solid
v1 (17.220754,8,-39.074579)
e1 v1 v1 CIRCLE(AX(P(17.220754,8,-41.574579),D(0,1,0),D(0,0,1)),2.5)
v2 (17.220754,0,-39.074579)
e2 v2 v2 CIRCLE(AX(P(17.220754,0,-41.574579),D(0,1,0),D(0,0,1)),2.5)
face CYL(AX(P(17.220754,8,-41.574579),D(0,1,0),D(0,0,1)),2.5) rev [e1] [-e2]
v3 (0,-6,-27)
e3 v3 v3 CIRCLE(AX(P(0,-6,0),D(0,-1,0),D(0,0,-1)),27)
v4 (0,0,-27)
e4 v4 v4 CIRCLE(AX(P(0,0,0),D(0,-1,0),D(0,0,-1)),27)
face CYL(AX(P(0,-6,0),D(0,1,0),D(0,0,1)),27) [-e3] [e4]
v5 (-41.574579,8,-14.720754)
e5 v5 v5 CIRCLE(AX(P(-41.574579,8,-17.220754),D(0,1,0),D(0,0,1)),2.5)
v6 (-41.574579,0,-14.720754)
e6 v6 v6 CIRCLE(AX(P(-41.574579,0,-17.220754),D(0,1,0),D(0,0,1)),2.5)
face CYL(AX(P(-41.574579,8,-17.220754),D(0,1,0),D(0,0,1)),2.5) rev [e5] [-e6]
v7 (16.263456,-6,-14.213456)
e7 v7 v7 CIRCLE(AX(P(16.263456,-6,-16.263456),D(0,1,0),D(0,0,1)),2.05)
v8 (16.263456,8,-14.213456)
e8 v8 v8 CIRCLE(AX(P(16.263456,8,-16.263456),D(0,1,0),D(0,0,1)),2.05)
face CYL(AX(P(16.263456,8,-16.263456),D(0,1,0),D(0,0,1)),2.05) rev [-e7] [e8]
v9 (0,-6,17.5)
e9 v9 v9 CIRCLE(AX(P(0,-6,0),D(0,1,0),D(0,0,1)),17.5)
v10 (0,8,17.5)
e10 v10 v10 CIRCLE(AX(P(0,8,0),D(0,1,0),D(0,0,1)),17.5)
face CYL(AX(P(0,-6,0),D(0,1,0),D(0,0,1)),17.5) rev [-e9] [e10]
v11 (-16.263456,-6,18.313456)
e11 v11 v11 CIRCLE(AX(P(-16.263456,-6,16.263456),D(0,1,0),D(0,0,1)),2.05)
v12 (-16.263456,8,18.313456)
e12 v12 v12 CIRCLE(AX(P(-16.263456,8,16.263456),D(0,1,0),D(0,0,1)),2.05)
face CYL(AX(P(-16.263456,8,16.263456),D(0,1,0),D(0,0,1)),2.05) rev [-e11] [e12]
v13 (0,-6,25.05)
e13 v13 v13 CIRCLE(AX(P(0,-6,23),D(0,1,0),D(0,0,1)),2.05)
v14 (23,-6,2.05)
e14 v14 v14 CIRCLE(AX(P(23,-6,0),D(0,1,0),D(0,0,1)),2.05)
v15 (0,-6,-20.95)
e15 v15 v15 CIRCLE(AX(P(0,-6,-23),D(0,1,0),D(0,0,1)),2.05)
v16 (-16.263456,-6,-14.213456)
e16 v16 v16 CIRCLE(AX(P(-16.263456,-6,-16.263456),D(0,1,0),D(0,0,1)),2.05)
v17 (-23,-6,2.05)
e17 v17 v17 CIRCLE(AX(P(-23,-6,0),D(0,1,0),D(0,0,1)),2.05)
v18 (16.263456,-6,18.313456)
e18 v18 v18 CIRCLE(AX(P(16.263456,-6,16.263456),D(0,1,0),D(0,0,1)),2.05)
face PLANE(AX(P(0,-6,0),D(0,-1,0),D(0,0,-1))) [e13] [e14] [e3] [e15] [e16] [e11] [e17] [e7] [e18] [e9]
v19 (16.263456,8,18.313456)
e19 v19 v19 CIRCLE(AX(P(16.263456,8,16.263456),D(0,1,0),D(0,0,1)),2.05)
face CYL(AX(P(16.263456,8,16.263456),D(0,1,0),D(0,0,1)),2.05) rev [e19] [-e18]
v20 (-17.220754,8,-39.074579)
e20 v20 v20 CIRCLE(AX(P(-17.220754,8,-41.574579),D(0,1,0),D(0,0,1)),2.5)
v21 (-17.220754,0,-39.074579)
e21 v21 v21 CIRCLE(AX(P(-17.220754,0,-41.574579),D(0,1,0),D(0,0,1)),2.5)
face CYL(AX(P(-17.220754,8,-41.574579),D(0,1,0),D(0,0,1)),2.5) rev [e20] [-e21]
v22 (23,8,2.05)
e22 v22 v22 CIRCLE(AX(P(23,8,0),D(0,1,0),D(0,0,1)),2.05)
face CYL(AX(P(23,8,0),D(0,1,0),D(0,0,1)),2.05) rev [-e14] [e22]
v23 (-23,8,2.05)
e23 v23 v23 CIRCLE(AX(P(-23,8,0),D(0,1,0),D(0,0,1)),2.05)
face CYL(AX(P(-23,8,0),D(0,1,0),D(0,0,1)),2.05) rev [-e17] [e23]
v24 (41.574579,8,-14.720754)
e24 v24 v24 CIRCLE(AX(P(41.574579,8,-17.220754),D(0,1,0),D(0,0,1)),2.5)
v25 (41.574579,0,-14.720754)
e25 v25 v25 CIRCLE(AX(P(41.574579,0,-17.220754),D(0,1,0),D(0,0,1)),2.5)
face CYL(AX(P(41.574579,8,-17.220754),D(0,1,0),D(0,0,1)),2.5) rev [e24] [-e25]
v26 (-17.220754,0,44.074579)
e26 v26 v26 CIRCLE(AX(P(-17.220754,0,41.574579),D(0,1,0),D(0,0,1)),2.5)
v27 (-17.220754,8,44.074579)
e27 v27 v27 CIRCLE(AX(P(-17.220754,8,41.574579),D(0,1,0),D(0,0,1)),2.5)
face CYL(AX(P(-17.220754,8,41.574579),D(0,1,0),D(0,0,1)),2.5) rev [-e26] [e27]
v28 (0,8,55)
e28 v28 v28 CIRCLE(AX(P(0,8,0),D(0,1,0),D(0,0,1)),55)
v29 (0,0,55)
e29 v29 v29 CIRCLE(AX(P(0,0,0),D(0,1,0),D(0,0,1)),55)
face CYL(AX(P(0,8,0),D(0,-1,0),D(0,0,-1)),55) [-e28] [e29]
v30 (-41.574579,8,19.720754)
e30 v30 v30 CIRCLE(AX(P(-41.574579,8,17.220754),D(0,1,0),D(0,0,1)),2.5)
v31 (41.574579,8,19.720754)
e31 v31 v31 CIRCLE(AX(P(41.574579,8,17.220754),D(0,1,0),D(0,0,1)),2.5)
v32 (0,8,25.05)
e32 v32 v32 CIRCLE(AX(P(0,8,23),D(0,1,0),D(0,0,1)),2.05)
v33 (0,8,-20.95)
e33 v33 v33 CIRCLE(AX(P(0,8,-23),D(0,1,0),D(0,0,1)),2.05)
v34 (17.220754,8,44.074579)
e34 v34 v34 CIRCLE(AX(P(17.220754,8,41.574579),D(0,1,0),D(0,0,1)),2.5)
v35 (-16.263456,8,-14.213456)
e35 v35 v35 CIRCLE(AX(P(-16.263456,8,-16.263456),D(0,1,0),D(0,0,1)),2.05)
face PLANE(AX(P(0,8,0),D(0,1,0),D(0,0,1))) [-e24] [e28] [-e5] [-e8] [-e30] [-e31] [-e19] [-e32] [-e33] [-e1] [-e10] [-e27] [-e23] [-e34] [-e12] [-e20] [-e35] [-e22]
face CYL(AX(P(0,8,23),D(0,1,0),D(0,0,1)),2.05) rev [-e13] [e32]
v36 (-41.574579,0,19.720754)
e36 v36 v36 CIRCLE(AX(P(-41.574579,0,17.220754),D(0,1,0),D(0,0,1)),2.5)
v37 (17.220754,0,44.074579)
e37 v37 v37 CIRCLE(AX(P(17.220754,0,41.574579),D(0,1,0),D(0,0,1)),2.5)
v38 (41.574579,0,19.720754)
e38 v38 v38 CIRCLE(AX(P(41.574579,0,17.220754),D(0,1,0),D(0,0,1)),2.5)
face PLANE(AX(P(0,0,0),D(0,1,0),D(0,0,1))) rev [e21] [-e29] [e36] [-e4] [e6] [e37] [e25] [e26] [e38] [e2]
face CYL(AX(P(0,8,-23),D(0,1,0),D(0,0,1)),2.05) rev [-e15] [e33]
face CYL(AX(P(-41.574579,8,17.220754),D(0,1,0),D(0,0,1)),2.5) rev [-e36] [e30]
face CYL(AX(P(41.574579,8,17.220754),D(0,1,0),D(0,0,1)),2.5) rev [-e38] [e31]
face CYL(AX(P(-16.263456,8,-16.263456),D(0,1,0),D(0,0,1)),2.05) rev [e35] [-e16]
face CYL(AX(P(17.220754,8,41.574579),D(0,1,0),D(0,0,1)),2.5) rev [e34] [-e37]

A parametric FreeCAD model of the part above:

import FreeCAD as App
import Part
import Sketcher

V = App.Vector

doc = App.newDocument("Part")
body = doc.addObject("PartDesign::Body", "Body")

# Sketch on XZ plane
sketch1 = body.newObject("Sketcher::SketchObject", "Sketch")
sketch1.AttachmentSupport = (doc.getObject("XZ_Plane"), [""])
sketch1.MapMode = "FlatFace"
sketch1.addGeometry(Part.Circle(V(0, 0, 0), V(0, 0, 1), 55), False)
sketch1.addConstraint([
    Sketcher.Constraint("Coincident", 0, 3, -1, 1),
    Sketcher.Constraint("Diameter", 0, 110.0),
])
pad1 = body.newObject("PartDesign::Pad", "Pad")
pad1.Profile = sketch1
pad1.Length = 8
pad1.Reversed = True

# Sketch on XZ plane
sketch2 = body.newObject("Sketcher::SketchObject", "Sketch001")
sketch2.AttachmentSupport = (doc.getObject("XZ_Plane"), [""])
sketch2.MapMode = "FlatFace"
sketch2.addGeometry(Part.Circle(V(0, 0, 0), V(0, 0, 1), 27), False)
sketch2.addConstraint([
    Sketcher.Constraint("Coincident", 0, 3, -1, 1),
    Sketcher.Constraint("Diameter", 0, 54.0),
])
pad2 = body.newObject("PartDesign::Pad", "Pad001")
pad2.Profile = sketch2
pad2.Length = 6

# Sketch on XZ plane
sketch3 = body.newObject("Sketcher::SketchObject", "Sketch002")
sketch3.AttachmentSupport = (doc.getObject("XZ_Plane"), [""])
sketch3.MapMode = "FlatFace"
sketch3.AttachmentOffset = App.Placement(V(0, 0, -8), App.Rotation())
sketch3.addGeometry(Part.Circle(V(0, 0, 0), V(0, 0, 1), 18), False)
sketch3.addConstraint([
    Sketcher.Constraint("Coincident", 0, 3, -1, 1),
    Sketcher.Constraint("Diameter", 0, 35.0),
])
pocket1 = body.newObject("PartDesign::Pocket", "Pocket")
pocket1.Profile = sketch3
pocket1.Type = "ThroughAll"
pocket1.Reversed = True

# Sketch on XZ plane
sketch4 = body.newObject("Sketcher::SketchObject", "Sketch003")
sketch4.AttachmentSupport = (doc.getObject("XZ_Plane"), [""])
sketch4.MapMode = "FlatFace"
sketch4.AttachmentOffset = App.Placement(V(0, 0, -8), App.Rotation())
sketch4.addGeometry(Part.Circle(V(0, -23, 0), V(0, 0, 1), 2), False)
sketch4.addConstraint([
    Sketcher.Constraint("PointOnObject", 0, 3, -2),
    Sketcher.Constraint("Diameter", 0, 4.1),
    Sketcher.Constraint("DistanceY", 0, 3, -1, 1, 23.0),
])
doc.recompute()
hole = body.newObject("PartDesign::Hole", "Hole")
hole.Profile = sketch4
hole.ThreadType = "None"
hole.Diameter = 4.1
hole.DepthType = "ThroughAll"
hole.Reversed = True
doc.recompute()

polarpattern = body.newObject("PartDesign::PolarPattern", "PolarPattern")
polarpattern.Originals = [hole]
polarpattern.Axis = (doc.getObject("Y_Axis"), [""])
polarpattern.Angle = 360
polarpattern.Occurrences = 8
body.Tip = polarpattern

# Sketch on XZ plane
sketch5 = body.newObject("Sketcher::SketchObject", "Sketch004")
sketch5.AttachmentSupport = (doc.getObject("XZ_Plane"), [""])
sketch5.MapMode = "FlatFace"
sketch5.AttachmentOffset = App.Placement(V(0, 0, -8), App.Rotation())
sketch5.addGeometry(Part.Circle(V(17.2, -41.6, 0), V(0, 0, 1), 2.5), False)
sketch5.addConstraint([
    Sketcher.Constraint("Diameter", 0, 5.0),
    Sketcher.Constraint("DistanceY", 0, 3, -1, 1, 41.574579),
    Sketcher.Constraint("DistanceX", -1, 1, 0, 3, 17.220754),
])
doc.recompute()
hole2 = body.newObject("PartDesign::Hole", "Hole001")
hole2.Profile = sketch5
hole2.ThreadType = "None"
hole2.Diameter = 5
hole2.DepthType = "ThroughAll"
hole2.Reversed = True
doc.recompute()

polarpattern2 = body.newObject("PartDesign::PolarPattern", "PolarPattern001")
polarpattern2.Originals = [hole2]
polarpattern2.Axis = (doc.getObject("Y_Axis"), [""])
polarpattern2.Angle = 360
polarpattern2.Occurrences = 8
body.Tip = polarpattern2

doc.recompute()
